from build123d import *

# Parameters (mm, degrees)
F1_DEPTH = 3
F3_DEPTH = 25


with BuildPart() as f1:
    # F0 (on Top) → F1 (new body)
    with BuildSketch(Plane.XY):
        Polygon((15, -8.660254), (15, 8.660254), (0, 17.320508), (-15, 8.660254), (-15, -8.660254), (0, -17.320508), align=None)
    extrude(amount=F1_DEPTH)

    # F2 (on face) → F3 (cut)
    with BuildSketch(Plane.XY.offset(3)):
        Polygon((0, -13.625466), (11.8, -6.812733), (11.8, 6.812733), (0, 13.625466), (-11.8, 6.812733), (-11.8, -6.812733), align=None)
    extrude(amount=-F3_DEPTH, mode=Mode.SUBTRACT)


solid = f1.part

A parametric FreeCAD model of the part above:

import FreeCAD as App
import Part
import Sketcher
Q = App.Units.Quantity


def add_polygon(sketch, points):
    """Adds a closed chain of lines whose ends are joined by coincident constraints."""
    first, n = sketch.GeometryCount, len(points)
    for a, b in zip(points, points[1:] + points[:1]):
        sketch.addGeometry(Part.LineSegment(App.Vector(*a, 0), App.Vector(*b, 0)), False)
    for i in range(n):
        sketch.addConstraint(Sketcher.Constraint("Coincident", first + i, 2, first + (i + 1) % n, 1))

doc = App.newDocument("Part")
body = doc.addObject("PartDesign::Body", "Body")

sketch1 = doc.addObject("Sketcher::SketchObject", "Sketch")
body.addObject(sketch1)
sketch1.AttachmentSupport = (doc.XY_Plane, [""])
sketch1.MapMode = "FlatFace"
add_polygon(sketch1, [(15, -9), (15, 9), (0, 17), (-15, 9), (-15, -9), (0, -17)])
sketch1.addConstraint([
    Sketcher.Constraint("Vertical", 0),
    Sketcher.Constraint("Vertical", 3),
    Sketcher.Constraint("Symmetric", 0, 2, 3, 2, -1, 1),
    Sketcher.Constraint("Symmetric", 1, 2, 4, 2, -1, 1),
    Sketcher.Constraint("PointOnObject", 1, 2, -2),
    Sketcher.Constraint("Parallel", 2, 5),
    Sketcher.Constraint("Horizontal", 0, 2, 2, 2),
    Sketcher.Constraint("Angle", 1, Q("150 deg")),
    Sketcher.Constraint("DistanceX", -1, 1, 0, 2, 15.0),
    Sketcher.Constraint("DistanceY", 0, 1, 0, 2, 17.320508),
])
pad1 = doc.addObject("PartDesign::Pad", "Pad")
body.addObject(pad1)
pad1.Profile = sketch1
pad1.Length = 3

sketch2 = doc.addObject("Sketcher::SketchObject", "Sketch001")
body.addObject(sketch2)
sketch2.AttachmentSupport = (doc.XY_Plane, [""])
sketch2.MapMode = "FlatFace"
sketch2.AttachmentOffset = App.Placement(App.Vector(0, 0, 3), App.Rotation())
add_polygon(sketch2, [(0, -14), (12, -7), (12, 7), (0, 14), (-12, 7), (-12, -7)])
sketch2.addConstraint([
    Sketcher.Constraint("Vertical", 1),
    Sketcher.Constraint("Vertical", 4),
    Sketcher.Constraint("Symmetric", 0, 2, 3, 2, -1, 1),
    Sketcher.Constraint("Symmetric", 2, 2, 5, 2, -1, 1),
    Sketcher.Constraint("PointOnObject", 2, 2, -2),
    Sketcher.Constraint("Parallel", 2, 5),
    Sketcher.Constraint("Horizontal", 1, 2, 3, 2),
    Sketcher.Constraint("Angle", 0, Q("29.999999 deg")),
    Sketcher.Constraint("DistanceX", -1, 1, 0, 2, 11.8),
    Sketcher.Constraint("DistanceY", 0, 2, 2, 2, 20.438199),
])
pocket1 = doc.addObject("PartDesign::Pocket", "Pocket")
body.addObject(pocket1)
pocket1.Profile = sketch2
pocket1.Length = 25

doc.recompute()
